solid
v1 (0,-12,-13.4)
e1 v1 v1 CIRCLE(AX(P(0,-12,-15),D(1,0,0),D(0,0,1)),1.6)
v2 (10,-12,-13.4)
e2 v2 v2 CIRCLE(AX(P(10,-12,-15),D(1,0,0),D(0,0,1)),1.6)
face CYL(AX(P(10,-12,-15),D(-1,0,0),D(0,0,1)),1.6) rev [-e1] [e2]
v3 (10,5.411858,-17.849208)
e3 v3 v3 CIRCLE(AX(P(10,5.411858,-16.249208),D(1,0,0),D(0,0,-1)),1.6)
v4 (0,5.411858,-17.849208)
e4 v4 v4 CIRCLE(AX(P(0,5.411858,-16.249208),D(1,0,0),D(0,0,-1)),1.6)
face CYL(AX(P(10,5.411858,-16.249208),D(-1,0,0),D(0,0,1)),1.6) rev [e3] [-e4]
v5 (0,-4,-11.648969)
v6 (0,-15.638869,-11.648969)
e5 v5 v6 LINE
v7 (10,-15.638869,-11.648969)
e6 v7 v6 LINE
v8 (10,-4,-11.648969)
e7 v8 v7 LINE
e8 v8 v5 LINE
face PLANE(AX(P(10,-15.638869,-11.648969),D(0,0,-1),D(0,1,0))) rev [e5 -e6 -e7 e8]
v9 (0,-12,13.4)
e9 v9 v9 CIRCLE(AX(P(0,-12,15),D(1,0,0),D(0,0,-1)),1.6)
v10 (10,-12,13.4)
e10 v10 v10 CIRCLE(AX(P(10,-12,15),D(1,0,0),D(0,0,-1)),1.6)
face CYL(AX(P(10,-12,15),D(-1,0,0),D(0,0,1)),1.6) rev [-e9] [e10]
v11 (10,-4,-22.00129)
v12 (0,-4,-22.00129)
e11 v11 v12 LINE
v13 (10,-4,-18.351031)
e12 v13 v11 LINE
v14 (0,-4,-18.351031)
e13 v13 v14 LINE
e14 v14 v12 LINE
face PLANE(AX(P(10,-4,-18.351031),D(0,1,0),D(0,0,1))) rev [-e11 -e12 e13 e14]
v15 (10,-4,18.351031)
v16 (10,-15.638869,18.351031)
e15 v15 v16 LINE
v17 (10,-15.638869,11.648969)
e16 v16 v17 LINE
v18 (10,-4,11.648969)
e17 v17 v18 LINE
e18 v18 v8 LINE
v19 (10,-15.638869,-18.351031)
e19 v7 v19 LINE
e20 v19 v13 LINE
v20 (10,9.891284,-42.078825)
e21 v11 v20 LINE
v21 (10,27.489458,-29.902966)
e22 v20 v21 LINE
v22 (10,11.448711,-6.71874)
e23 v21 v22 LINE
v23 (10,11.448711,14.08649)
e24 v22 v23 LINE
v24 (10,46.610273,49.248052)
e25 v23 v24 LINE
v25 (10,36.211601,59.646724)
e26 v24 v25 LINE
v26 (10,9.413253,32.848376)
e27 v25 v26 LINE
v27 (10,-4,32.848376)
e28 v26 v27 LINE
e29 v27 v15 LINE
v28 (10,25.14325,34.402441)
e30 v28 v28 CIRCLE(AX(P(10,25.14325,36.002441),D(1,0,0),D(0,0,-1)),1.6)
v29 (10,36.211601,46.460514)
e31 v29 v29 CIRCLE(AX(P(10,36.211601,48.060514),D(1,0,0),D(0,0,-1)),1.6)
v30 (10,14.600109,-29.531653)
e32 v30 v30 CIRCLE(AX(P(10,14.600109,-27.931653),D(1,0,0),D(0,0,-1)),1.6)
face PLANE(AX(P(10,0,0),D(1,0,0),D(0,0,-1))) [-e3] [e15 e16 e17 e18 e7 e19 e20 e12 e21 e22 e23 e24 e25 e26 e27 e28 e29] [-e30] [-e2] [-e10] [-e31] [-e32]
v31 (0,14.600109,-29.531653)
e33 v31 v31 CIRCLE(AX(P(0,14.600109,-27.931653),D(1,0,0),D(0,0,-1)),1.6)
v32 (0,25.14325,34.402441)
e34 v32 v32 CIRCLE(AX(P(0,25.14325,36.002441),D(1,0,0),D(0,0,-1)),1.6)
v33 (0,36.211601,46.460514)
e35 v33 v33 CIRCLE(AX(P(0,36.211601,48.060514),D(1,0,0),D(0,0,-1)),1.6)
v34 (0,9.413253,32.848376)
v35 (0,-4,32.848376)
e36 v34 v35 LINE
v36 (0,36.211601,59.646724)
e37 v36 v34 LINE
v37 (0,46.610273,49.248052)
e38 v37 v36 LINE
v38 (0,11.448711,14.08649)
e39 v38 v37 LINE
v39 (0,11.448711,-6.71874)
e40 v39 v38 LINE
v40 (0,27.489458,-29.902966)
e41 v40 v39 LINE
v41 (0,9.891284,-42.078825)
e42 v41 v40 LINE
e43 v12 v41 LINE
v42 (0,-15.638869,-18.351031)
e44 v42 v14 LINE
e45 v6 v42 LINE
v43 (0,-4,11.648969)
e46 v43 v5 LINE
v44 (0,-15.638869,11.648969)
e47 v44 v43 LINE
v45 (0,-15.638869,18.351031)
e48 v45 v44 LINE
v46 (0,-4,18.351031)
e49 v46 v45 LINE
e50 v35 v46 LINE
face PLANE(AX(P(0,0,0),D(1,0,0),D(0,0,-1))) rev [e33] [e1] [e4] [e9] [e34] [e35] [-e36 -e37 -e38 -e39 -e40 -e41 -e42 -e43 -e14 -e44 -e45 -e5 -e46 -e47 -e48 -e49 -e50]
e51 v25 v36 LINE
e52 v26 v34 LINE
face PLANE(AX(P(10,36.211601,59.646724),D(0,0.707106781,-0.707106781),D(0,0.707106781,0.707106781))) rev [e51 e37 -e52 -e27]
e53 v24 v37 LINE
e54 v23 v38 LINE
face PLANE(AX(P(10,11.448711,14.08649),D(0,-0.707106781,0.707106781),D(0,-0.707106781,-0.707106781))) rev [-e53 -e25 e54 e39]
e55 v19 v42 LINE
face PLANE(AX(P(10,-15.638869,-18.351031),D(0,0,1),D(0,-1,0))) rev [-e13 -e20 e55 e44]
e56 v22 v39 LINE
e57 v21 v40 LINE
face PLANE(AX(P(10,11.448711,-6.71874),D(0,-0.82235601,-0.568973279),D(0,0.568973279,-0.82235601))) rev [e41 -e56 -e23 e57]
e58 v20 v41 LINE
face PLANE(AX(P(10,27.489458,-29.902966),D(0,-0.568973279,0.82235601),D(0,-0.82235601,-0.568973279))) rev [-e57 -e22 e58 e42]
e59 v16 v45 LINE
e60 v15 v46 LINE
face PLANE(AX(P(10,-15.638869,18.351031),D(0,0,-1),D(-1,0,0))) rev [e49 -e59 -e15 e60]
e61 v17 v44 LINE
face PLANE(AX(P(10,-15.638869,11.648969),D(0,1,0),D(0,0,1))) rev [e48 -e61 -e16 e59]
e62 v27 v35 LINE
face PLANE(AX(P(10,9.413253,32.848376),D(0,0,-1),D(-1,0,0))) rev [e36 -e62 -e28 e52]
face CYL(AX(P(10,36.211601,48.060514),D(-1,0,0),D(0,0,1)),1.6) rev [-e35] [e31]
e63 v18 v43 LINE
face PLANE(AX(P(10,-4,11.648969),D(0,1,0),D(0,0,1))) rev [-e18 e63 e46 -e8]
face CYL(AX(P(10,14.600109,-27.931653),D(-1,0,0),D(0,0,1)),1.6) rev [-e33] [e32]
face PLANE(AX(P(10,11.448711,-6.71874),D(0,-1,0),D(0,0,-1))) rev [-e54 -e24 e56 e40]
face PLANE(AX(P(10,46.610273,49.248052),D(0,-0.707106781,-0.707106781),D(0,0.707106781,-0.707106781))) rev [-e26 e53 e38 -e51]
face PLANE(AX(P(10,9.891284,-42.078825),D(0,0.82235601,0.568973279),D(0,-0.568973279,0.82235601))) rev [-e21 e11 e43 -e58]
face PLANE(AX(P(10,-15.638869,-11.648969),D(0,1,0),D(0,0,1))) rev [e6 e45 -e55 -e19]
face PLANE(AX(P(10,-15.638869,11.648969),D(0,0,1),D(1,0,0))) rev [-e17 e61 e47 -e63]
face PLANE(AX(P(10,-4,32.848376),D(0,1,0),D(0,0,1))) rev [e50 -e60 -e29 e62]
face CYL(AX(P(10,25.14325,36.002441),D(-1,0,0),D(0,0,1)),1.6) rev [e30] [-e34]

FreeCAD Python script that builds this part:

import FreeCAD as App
import Part
import Sketcher

V = App.Vector
Q = App.Units.Quantity


def add_polygon(sketch, points):
    """Adds a closed chain of lines whose ends are joined by coincident constraints."""
    first, n = sketch.GeometryCount, len(points)
    for a, b in zip(points, points[1:] + points[:1]):
        sketch.addGeometry(Part.LineSegment(App.Vector(*a, 0), App.Vector(*b, 0)), False)
    for i in range(n):
        sketch.addConstraint(Sketcher.Constraint("Coincident", first + i, 2, first + (i + 1) % n, 1))

doc = App.newDocument("Part")
body = doc.addObject("PartDesign::Body", "Body")

sketch1 = body.newObject("Sketcher::SketchObject", "Sketch")
sketch1.AttachmentSupport = (doc.getObject("YZ_Plane"), [""])
sketch1.MapMode = "FlatFace"
add_polygon(sketch1, [(-15.638869, 18.351031), (-15.638869, 11.648969), (-4, 11.648969), (-4, -11.648969), (-15.638869, -11.648969), (-15.638869, -18.351031), (-4, -18.351031), (-4, -22.00129), (9.891284, -42.078825), (27.489458, -29.902966), (11.448711, -6.71874), (11.448711, 14.08649), (46.610273, 49.248052), (36.211601, 59.646724), (9.413253, 32.848376), (-4, 32.848376), (-4, 18.351031)])
sketch1.addGeometry(Part.Circle(V(-12, -15, 0), V(0, 0, 1), 1.6), False)
sketch1.addGeometry(Part.Circle(V(5.411858, -16.249208, 0), V(0, 0, 1), 1.6), False)
sketch1.addGeometry(Part.Circle(V(-12, 15, 0), V(0, 0, 1), 1.6), False)
sketch1.addGeometry(Part.Circle(V(14.600109, -27.931653, 0), V(0, 0, 1), 1.6), False)
sketch1.addGeometry(Part.Circle(V(25.14325, 36.002441, 0), V(0, 0, 1), 1.6), False)
sketch1.addGeometry(Part.Circle(V(36.211601, 48.060514, 0), V(0, 0, 1), 1.6), False)
sketch1.addConstraint([
    Sketcher.Constraint("Vertical", 0),
    Sketcher.Constraint("Horizontal", 1),
    Sketcher.Constraint("Vertical", 2),
    Sketcher.Constraint("Horizontal", 3),
    Sketcher.Constraint("Vertical", 4),
    Sketcher.Constraint("Horizontal", 5),
    Sketcher.Constraint("Vertical", 6),
    Sketcher.Constraint("Vertical", 10),
    Sketcher.Constraint("Horizontal", 14),
    Sketcher.Constraint("Vertical", 15),
    Sketcher.Constraint("Horizontal", 16),
    Sketcher.Constraint("Equal", 17, 18),
    Sketcher.Constraint("Equal", 18, 19),
    Sketcher.Constraint("Equal", 19, 20),
    Sketcher.Constraint("Equal", 20, 21),
    Sketcher.Constraint("Equal", 21, 22),
    Sketcher.Constraint("Symmetric", 17, 3, 19, 3, -1),
    Sketcher.Constraint("Symmetric", 0, 2, 3, 2, -1),
    Sketcher.Constraint("Symmetric", 5, 2, 15, 2, -1),
    Sketcher.Constraint("Perpendicular", 7, 8),
    Sketcher.Constraint("Perpendicular", 8, 9),
    Sketcher.Constraint("Perpendicular", 11, 12),
    Sketcher.Constraint("Perpendicular", 12, 13),
    Sketcher.Constraint("Vertical", 2, 2, 5, 2),
    Sketcher.Constraint("Vertical", 22, 3, 12, 2),
    Sketcher.Constraint("Diameter", 17, Q("3.2 mm")),
    Sketcher.Constraint("Angle", 11, Q("45 deg")),
    Sketcher.Constraint("DistanceX", 17, 3, -1, 1, Q("12 mm")),
    Sketcher.Constraint("DistanceY", 17, 3, -1, 1, Q("15 mm")),
    Sketcher.Constraint("DistanceX", 1, 2, -1, 1, Q("4 mm")),
    Sketcher.Constraint("DistanceY", 4, 2, 0, 2, Q("30 mm")),
    Sketcher.Constraint("DistanceX", 1, 1, 1, 2, Q("11.638869 mm")),
    Sketcher.Constraint("DistanceY", 0, 2, 0, 1, Q("6.702061 mm")),
    Sketcher.Constraint("DistanceY", 6, 2, 6, 1, Q("3.65026 mm")),
    Sketcher.Constraint("DistanceY", 10, 1, 10, 2, Q("20.80523 mm")),
    Sketcher.Constraint("DistanceX", -1, 1, 22, 3, Q("36.211601 mm")),
    Sketcher.Constraint("DistanceX", 18, 3, 8, 2, Q("22.077601 mm")),
    Sketcher.Constraint("Distance", 7, Q("24.414651 mm")),
    Sketcher.Constraint("DistanceX", 14, 2, 14, 1, Q("13.413253 mm")),
    Sketcher.Constraint("DistanceY", 15, 2, 15, 1, Q("14.497345 mm")),
    Sketcher.Constraint("DistanceX", -1, 1, 20, 3, Q("14.600109 mm")),
    Sketcher.Constraint("DistanceX", -1, 1, 21, 3, Q("25.14325 mm")),
    Sketcher.Constraint("DistanceY", -1, 1, 21, 3, Q("36.002441 mm")),
    Sketcher.Constraint("DistanceX", -1, 1, 8, 2, Q("27.489458 mm")),
    Sketcher.Constraint("DistanceX", -1, 1, 9, 2, Q("11.448711 mm")),
    Sketcher.Constraint("DistanceY", 9, 2, -1, 1, Q("6.71874 mm")),
    Sketcher.Constraint("DistanceY", 18, 3, 21, 3, Q("52.251649 mm")),
    Sketcher.Constraint("DistanceY", 7, 2, 20, 3, Q("14.147172 mm")),
    Sketcher.Constraint("DistanceY", 22, 3, 12, 2, Q("11.586209 mm")),
])
pad1 = body.newObject("PartDesign::Pad", "Pad")
pad1.Profile = sketch1
pad1.Length = 10

doc.recompute()
